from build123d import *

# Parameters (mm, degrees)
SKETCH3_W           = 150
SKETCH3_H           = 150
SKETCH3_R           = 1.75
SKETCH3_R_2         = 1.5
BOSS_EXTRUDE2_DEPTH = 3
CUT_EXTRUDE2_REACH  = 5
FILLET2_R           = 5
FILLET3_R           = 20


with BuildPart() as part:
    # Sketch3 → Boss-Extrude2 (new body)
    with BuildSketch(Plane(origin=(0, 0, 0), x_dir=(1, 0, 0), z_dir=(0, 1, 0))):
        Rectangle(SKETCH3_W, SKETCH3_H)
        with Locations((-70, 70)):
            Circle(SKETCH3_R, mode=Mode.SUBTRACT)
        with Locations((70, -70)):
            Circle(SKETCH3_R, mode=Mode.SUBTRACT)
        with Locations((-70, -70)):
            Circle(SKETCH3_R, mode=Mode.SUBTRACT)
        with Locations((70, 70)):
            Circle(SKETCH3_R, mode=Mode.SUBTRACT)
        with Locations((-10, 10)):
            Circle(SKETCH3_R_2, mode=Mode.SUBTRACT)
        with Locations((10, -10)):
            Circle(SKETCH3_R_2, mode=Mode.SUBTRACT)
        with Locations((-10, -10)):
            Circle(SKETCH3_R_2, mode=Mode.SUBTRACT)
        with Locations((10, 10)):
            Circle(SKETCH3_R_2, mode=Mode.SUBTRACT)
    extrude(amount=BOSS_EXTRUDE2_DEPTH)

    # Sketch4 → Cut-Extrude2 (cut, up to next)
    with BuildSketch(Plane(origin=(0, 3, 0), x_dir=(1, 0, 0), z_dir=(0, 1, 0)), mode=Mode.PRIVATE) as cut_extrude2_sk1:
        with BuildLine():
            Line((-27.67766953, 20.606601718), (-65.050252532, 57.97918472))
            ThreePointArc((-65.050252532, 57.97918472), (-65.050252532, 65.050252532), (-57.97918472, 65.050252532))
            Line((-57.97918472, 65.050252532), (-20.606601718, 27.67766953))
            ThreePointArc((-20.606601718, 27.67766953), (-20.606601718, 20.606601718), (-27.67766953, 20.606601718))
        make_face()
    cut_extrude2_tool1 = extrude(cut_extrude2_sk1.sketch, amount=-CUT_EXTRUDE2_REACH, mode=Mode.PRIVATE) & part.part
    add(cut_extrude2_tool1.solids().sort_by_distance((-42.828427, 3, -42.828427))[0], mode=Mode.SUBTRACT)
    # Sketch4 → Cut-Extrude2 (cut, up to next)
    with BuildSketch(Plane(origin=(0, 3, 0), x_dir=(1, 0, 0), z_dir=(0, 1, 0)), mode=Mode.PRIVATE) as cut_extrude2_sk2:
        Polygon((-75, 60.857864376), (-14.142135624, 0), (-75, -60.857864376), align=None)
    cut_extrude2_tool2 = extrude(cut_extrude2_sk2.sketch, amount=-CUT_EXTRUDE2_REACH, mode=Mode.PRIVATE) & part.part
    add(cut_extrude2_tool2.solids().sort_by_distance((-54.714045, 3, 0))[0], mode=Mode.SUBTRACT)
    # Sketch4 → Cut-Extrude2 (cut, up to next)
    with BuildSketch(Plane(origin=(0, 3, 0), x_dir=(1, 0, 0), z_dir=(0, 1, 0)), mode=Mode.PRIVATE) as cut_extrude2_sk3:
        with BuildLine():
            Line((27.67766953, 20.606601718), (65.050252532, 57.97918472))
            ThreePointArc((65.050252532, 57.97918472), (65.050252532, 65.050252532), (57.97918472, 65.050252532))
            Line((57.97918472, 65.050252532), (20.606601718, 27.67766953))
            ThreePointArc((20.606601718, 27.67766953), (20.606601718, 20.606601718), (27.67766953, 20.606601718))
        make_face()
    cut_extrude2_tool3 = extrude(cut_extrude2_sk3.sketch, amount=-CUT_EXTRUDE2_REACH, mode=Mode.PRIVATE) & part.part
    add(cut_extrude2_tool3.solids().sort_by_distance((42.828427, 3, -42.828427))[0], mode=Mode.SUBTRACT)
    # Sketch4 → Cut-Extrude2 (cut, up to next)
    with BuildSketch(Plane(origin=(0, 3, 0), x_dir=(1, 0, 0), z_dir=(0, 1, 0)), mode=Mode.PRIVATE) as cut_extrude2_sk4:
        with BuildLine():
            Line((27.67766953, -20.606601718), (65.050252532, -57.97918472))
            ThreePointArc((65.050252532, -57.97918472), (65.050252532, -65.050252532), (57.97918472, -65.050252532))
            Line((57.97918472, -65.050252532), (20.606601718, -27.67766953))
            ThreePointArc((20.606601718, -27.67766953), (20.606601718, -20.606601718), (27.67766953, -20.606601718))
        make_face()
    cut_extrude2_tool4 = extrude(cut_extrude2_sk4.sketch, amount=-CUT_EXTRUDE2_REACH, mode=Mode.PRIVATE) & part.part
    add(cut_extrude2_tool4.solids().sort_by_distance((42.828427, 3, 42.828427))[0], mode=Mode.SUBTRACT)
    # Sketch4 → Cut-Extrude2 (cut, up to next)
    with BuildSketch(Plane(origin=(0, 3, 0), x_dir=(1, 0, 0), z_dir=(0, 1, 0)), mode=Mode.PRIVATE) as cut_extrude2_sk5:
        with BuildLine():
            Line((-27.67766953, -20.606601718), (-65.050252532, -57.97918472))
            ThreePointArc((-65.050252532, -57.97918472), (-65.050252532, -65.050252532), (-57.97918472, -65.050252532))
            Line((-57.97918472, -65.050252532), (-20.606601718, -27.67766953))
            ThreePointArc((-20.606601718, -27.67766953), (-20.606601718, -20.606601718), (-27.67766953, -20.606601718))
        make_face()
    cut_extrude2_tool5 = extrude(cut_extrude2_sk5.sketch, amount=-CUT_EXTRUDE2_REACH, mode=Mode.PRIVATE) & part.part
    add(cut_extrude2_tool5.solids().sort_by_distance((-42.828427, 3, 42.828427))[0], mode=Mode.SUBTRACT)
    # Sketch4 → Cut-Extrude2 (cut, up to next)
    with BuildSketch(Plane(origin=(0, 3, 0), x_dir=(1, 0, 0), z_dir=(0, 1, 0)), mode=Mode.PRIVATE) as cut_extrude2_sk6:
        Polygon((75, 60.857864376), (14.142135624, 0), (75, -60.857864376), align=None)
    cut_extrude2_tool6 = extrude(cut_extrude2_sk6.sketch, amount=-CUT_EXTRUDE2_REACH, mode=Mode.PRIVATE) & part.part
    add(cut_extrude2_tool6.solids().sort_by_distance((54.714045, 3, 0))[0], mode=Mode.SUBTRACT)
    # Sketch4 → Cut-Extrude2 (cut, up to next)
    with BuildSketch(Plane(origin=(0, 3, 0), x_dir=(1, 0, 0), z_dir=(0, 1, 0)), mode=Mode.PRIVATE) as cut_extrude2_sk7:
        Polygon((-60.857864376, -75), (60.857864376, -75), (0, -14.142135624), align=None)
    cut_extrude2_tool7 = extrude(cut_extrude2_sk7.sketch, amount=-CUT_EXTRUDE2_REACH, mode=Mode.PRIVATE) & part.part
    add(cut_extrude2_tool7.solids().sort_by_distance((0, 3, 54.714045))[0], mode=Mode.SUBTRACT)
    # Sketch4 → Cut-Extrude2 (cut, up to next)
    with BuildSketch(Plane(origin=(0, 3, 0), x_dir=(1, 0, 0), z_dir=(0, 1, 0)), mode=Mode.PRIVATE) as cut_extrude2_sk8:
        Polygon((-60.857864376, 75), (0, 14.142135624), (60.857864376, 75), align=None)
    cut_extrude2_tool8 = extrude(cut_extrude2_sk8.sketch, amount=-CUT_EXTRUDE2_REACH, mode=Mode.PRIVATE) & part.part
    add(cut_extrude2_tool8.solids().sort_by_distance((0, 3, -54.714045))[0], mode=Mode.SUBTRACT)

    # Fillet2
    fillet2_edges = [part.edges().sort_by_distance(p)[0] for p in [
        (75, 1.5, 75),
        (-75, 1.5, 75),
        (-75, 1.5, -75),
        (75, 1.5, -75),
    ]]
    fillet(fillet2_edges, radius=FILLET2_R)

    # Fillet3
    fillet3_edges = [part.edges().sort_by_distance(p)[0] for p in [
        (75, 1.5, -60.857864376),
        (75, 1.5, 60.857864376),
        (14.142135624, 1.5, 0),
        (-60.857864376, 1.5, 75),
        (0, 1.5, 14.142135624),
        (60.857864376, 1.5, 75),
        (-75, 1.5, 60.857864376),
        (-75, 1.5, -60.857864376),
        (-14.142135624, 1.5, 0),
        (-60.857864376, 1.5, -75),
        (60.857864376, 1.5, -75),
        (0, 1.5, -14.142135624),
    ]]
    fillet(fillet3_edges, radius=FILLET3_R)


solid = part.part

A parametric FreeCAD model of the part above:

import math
import FreeCAD as App
import Part
import Sketcher
Q = App.Units.Quantity


def edges_at(feature, points):
    """Names of the edges that pass closest to the given points."""
    edges = feature.Shape.Edges
    near = lambda p: min(range(len(edges)), key=lambda i: edges[i].distToShape(Part.Vertex(*p))[0])
    return sorted({f"Edge{near(p) + 1}" for p in points})


def add_polygon(sketch, points):
    """Adds a closed chain of lines whose ends are joined by coincident constraints."""
    first, n = sketch.GeometryCount, len(points)
    for a, b in zip(points, points[1:] + points[:1]):
        sketch.addGeometry(Part.LineSegment(App.Vector(*a, 0), App.Vector(*b, 0)), False)
    for i in range(n):
        sketch.addConstraint(Sketcher.Constraint("Coincident", first + i, 2, first + (i + 1) % n, 1))

doc = App.newDocument("Part")
body = doc.addObject("PartDesign::Body", "Body")

sketch1 = body.newObject("Sketcher::SketchObject", "Sketch")
sketch1.AttachmentSupport = (doc.getObject("XZ_Plane"), [""])
sketch1.MapMode = "FlatFace"
add_polygon(sketch1, [(-75, -75), (-75, 75), (75, 75), (75, -75)])
sketch1.addGeometry(Part.Circle(App.Vector(-70, 70, 0), App.Vector(0, 0, 1), 1.75), False)
sketch1.addGeometry(Part.Circle(App.Vector(-10, 10, 0), App.Vector(0, 0, 1), 1.5), False)
sketch1.addGeometry(Part.Circle(App.Vector(70, 70, 0), App.Vector(0, 0, 1), 1.75), False)
sketch1.addGeometry(Part.Circle(App.Vector(10, 10, 0), App.Vector(0, 0, 1), 1.5), False)
sketch1.addGeometry(Part.Circle(App.Vector(-10, -10, 0), App.Vector(0, 0, 1), 1.5), False)
sketch1.addGeometry(Part.Circle(App.Vector(-70, -70, 0), App.Vector(0, 0, 1), 1.75), False)
sketch1.addGeometry(Part.Circle(App.Vector(10, -10, 0), App.Vector(0, 0, 1), 1.5), False)
sketch1.addGeometry(Part.Circle(App.Vector(70, -70, 0), App.Vector(0, 0, 1), 1.75), False)
sketch1.addConstraint([
    Sketcher.Constraint("Vertical", 0),
    Sketcher.Constraint("Horizontal", 1),
    Sketcher.Constraint("Vertical", 2),
    Sketcher.Constraint("Horizontal", 3),
    Sketcher.Constraint("Equal", 4, 6),
    Sketcher.Constraint("Equal", 5, 7),
    Sketcher.Constraint("Equal", 7, 8),
    Sketcher.Constraint("Equal", 6, 9),
    Sketcher.Constraint("Equal", 8, 10),
    Sketcher.Constraint("Equal", 9, 11),
    Sketcher.Constraint("Symmetric", 7, 3, 8, 3, -1, 1),
    Sketcher.Constraint("Symmetric", 6, 3, 9, 3, -1, 1),
    Sketcher.Constraint("Symmetric", 5, 3, 10, 3, -1, 1),
    Sketcher.Constraint("Symmetric", 4, 3, 11, 3, -1, 1),
    Sketcher.Constraint("Symmetric", 0, 2, 2, 2, -1, 1),
    Sketcher.Constraint("Symmetric", 4, 3, 6, 3, -2),
    Sketcher.Constraint("Symmetric", 5, 3, 7, 3, -2),
    Sketcher.Constraint("Equal", 3, 0),
    Sketcher.Constraint("Diameter", 5, 3.0),
    Sketcher.Constraint("Diameter", 4, 3.5),
    Sketcher.Constraint("DistanceX", 1, 1, 1, 2, 150.0),
    Sketcher.Constraint("DistanceX", 4, 3, -1, 1, 70.0),
    Sketcher.Constraint("DistanceY", -1, 1, 4, 3, 70.0),
    Sketcher.Constraint("DistanceX", 5, 3, -1, 1, 10.0),
    Sketcher.Constraint("DistanceY", -1, 1, 5, 3, 10.0),
])
pad1 = body.newObject("PartDesign::Pad", "Pad")
pad1.Profile = sketch1
pad1.Length = 3
pad1.Reversed = True

sketch2 = body.newObject("Sketcher::SketchObject", "Sketch001")
sketch2.AttachmentSupport = (doc.getObject("XZ_Plane"), [""])
sketch2.MapMode = "FlatFace"
sketch2.AttachmentOffset = App.Placement(App.Vector(0, 0, -3), App.Rotation())
sketch2.addGeometry([
    Part.LineSegment(App.Vector(-65.050253, -57.979185, 0), App.Vector(-27.67767, -20.606602, 0)),
    Part.ArcOfCircle(Part.Circle(App.Vector(-24.142136, -24.142136, 0), App.Vector(0, 0, 1), 5), math.radians(-45), math.radians(135)),
    Part.LineSegment(App.Vector(-20.606602, -27.67767, 0), App.Vector(-57.979185, -65.050253, 0)),
    Part.ArcOfCircle(Part.Circle(App.Vector(-61.514719, -61.514719, 0), App.Vector(0, 0, 1), 5), math.radians(135), math.radians(315)),
], False)
sketch2.addConstraint([
    Sketcher.Constraint("Tangent", 0, 2, 1, 2),
    Sketcher.Constraint("Tangent", 1, 1, 2, 1),
    Sketcher.Constraint("Tangent", 2, 2, 3, 2),
    Sketcher.Constraint("Tangent", 3, 1, 0, 1),
    Sketcher.Constraint("Equal", 1, 3),
    Sketcher.Constraint("Radius", 1, 5.0),
    Sketcher.Constraint("Angle", 0, Q("45 deg")),
    Sketcher.Constraint("DistanceY", 0, 2, -1, 1, 20.606602),
    Sketcher.Constraint("DistanceX", 1, 1, -1, 1, 20.606602),
    Sketcher.Constraint("DistanceX", 3, 3, -1, 1, 61.514719),
])
pocket1 = body.newObject("PartDesign::Pocket", "Pocket")
pocket1.Profile = sketch2
pocket1.Type = "UpToFirst"
pocket1.Reversed = True

sketch3 = body.newObject("Sketcher::SketchObject", "Sketch002")
sketch3.AttachmentSupport = (doc.getObject("XZ_Plane"), [""])
sketch3.MapMode = "FlatFace"
sketch3.AttachmentOffset = App.Placement(App.Vector(0, 0, -3), App.Rotation())
add_polygon(sketch3, [(-14.142136, 0), (-75, -60.857864), (-75, 60.857864)])
sketch3.addConstraint([
    Sketcher.Constraint("Vertical", 1),
    Sketcher.Constraint("PointOnObject", 2, 2, -1),
    Sketcher.Constraint("Perpendicular", 0, 2),
    Sketcher.Constraint("Equal", 0, 2),
    Sketcher.Constraint("DistanceX", 0, 2, -1, 1, 75.0),
    Sketcher.Constraint("DistanceY", 1, 1, 1, 2, 121.715729),
])
pocket2 = body.newObject("PartDesign::Pocket", "Pocket001")
pocket2.Profile = sketch3
pocket2.Type = "UpToFirst"
pocket2.Reversed = True

sketch4 = body.newObject("Sketcher::SketchObject", "Sketch003")
sketch4.AttachmentSupport = (doc.getObject("XZ_Plane"), [""])
sketch4.MapMode = "FlatFace"
sketch4.AttachmentOffset = App.Placement(App.Vector(0, 0, -3), App.Rotation())
sketch4.addGeometry([
    Part.LineSegment(App.Vector(27.67767, -20.606602, 0), App.Vector(65.050253, -57.979185, 0)),
    Part.ArcOfCircle(Part.Circle(App.Vector(61.514719, -61.514719, 0), App.Vector(0, 0, 1), 5), math.radians(-135), math.radians(45)),
    Part.LineSegment(App.Vector(57.979185, -65.050253, 0), App.Vector(20.606602, -27.67767, 0)),
    Part.ArcOfCircle(Part.Circle(App.Vector(24.142136, -24.142136, 0), App.Vector(0, 0, 1), 5), math.radians(45), math.radians(225)),
], False)
sketch4.addConstraint([
    Sketcher.Constraint("Tangent", 0, 2, 1, 2),
    Sketcher.Constraint("Tangent", 1, 1, 2, 1),
    Sketcher.Constraint("Tangent", 2, 2, 3, 2),
    Sketcher.Constraint("Tangent", 3, 1, 0, 1),
    Sketcher.Constraint("Equal", 1, 3),
    Sketcher.Constraint("Radius", 1, 5.0),
    Sketcher.Constraint("Angle", 0, Q("-45 deg")),
    Sketcher.Constraint("DistanceX", -1, 1, 2, 2, 20.606602),
    Sketcher.Constraint("DistanceY", 3, 1, -1, 1, 20.606602),
    Sketcher.Constraint("DistanceX", -1, 1, 1, 3, 61.514719),
])
pocket3 = body.newObject("PartDesign::Pocket", "Pocket002")
pocket3.Profile = sketch4
pocket3.Type = "UpToFirst"
pocket3.Reversed = True

sketch5 = body.newObject("Sketcher::SketchObject", "Sketch004")
sketch5.AttachmentSupport = (doc.getObject("XZ_Plane"), [""])
sketch5.MapMode = "FlatFace"
sketch5.AttachmentOffset = App.Placement(App.Vector(0, 0, -3), App.Rotation())
sketch5.addGeometry([
    Part.LineSegment(App.Vector(65.050253, 57.979185, 0), App.Vector(27.67767, 20.606602, 0)),
    Part.ArcOfCircle(Part.Circle(App.Vector(24.142136, 24.142136, 0), App.Vector(0, 0, 1), 5), math.radians(135), math.radians(315)),
    Part.LineSegment(App.Vector(20.606602, 27.67767, 0), App.Vector(57.979185, 65.050253, 0)),
    Part.ArcOfCircle(Part.Circle(App.Vector(61.514719, 61.514719, 0), App.Vector(0, 0, 1), 5), math.radians(-45), math.radians(135)),
], False)
sketch5.addConstraint([
    Sketcher.Constraint("Tangent", 0, 2, 1, 2),
    Sketcher.Constraint("Tangent", 1, 1, 2, 1),
    Sketcher.Constraint("Tangent", 2, 2, 3, 2),
    Sketcher.Constraint("Tangent", 3, 1, 0, 1),
    Sketcher.Constraint("Equal", 1, 3),
    Sketcher.Constraint("Radius", 1, 5.0),
    Sketcher.Constraint("Angle", 0, Q("-135 deg")),
    Sketcher.Constraint("DistanceY", -1, 1, 0, 2, 20.606602),
    Sketcher.Constraint("DistanceX", -1, 1, 1, 1, 20.606602),
    Sketcher.Constraint("DistanceX", -1, 1, 3, 3, 61.514719),
])
pocket4 = body.newObject("PartDesign::Pocket", "Pocket003")
pocket4.Profile = sketch5
pocket4.Type = "UpToFirst"
pocket4.Reversed = True

sketch6 = body.newObject("Sketcher::SketchObject", "Sketch005")
sketch6.AttachmentSupport = (doc.getObject("XZ_Plane"), [""])
sketch6.MapMode = "FlatFace"
sketch6.AttachmentOffset = App.Placement(App.Vector(0, 0, -3), App.Rotation())
sketch6.addGeometry([
    Part.LineSegment(App.Vector(-27.67767, 20.606602, 0), App.Vector(-65.050253, 57.979185, 0)),
    Part.ArcOfCircle(Part.Circle(App.Vector(-61.514719, 61.514719, 0), App.Vector(0, 0, 1), 5), math.radians(45), math.radians(225)),
    Part.LineSegment(App.Vector(-57.979185, 65.050253, 0), App.Vector(-20.606602, 27.67767, 0)),
    Part.ArcOfCircle(Part.Circle(App.Vector(-24.142136, 24.142136, 0), App.Vector(0, 0, 1), 5), math.radians(-135), math.radians(45)),
], False)
sketch6.addConstraint([
    Sketcher.Constraint("Tangent", 0, 2, 1, 2),
    Sketcher.Constraint("Tangent", 1, 1, 2, 1),
    Sketcher.Constraint("Tangent", 2, 2, 3, 2),
    Sketcher.Constraint("Tangent", 3, 1, 0, 1),
    Sketcher.Constraint("Equal", 1, 3),
    Sketcher.Constraint("Radius", 1, 5.0),
    Sketcher.Constraint("Angle", 0, Q("135 deg")),
    Sketcher.Constraint("DistanceX", 2, 2, -1, 1, 20.606602),
    Sketcher.Constraint("DistanceY", -1, 1, 3, 1, 20.606602),
    Sketcher.Constraint("DistanceX", 1, 3, -1, 1, 61.514719),
])
pocket5 = body.newObject("PartDesign::Pocket", "Pocket004")
pocket5.Profile = sketch6
pocket5.Type = "UpToFirst"
pocket5.Reversed = True

sketch7 = body.newObject("Sketcher::SketchObject", "Sketch006")
sketch7.AttachmentSupport = (doc.getObject("XZ_Plane"), [""])
sketch7.MapMode = "FlatFace"
sketch7.AttachmentOffset = App.Placement(App.Vector(0, 0, -3), App.Rotation())
add_polygon(sketch7, [(75, -60.857864), (14.142136, 0), (75, 60.857864)])
sketch7.addConstraint([
    Sketcher.Constraint("Vertical", 2),
    Sketcher.Constraint("PointOnObject", 0, 2, -1),
    Sketcher.Constraint("Perpendicular", 0, 1),
    Sketcher.Constraint("Equal", 0, 1),
    Sketcher.Constraint("DistanceX", -1, 1, 1, 2, 75.0),
    Sketcher.Constraint("DistanceY", 2, 2, 2, 1, 121.715729),
])
pocket6 = body.newObject("PartDesign::Pocket", "Pocket005")
pocket6.Profile = sketch7
pocket6.Type = "UpToFirst"
pocket6.Reversed = True

sketch8 = body.newObject("Sketcher::SketchObject", "Sketch007")
sketch8.AttachmentSupport = (doc.getObject("XZ_Plane"), [""])
sketch8.MapMode = "FlatFace"
sketch8.AttachmentOffset = App.Placement(App.Vector(0, 0, -3), App.Rotation())
add_polygon(sketch8, [(-60.857864, 75), (60.857864, 75), (0, 14.142136)])
sketch8.addConstraint([
    Sketcher.Constraint("Horizontal", 0),
    Sketcher.Constraint("PointOnObject", 1, 2, -2),
    Sketcher.Constraint("Perpendicular", 1, 2),
    Sketcher.Constraint("Equal", 1, 2),
    Sketcher.Constraint("DistanceY", -1, 1, 0, 2, 75.0),
    Sketcher.Constraint("DistanceX", 0, 1, 0, 2, 121.715729),
])
pocket7 = body.newObject("PartDesign::Pocket", "Pocket006")
pocket7.Profile = sketch8
pocket7.Type = "UpToFirst"
pocket7.Reversed = True

sketch9 = body.newObject("Sketcher::SketchObject", "Sketch008")
sketch9.AttachmentSupport = (doc.getObject("XZ_Plane"), [""])
sketch9.MapMode = "FlatFace"
sketch9.AttachmentOffset = App.Placement(App.Vector(0, 0, -3), App.Rotation())
add_polygon(sketch9, [(-60.857864, -75), (0, -14.142136), (60.857864, -75)])
sketch9.addConstraint([
    Sketcher.Constraint("Horizontal", 2),
    Sketcher.Constraint("PointOnObject", 0, 2, -2),
    Sketcher.Constraint("Perpendicular", 0, 1),
    Sketcher.Constraint("Equal", 0, 1),
    Sketcher.Constraint("DistanceY", 1, 2, -1, 1, 75.0),
    Sketcher.Constraint("DistanceX", 2, 2, 2, 1, 121.715729),
])
pocket8 = body.newObject("PartDesign::Pocket", "Pocket007")
pocket8.Profile = sketch9
pocket8.Type = "UpToFirst"
pocket8.Reversed = True
doc.recompute()

fillet = body.newObject("PartDesign::Fillet", "Fillet")
fillet.Base = (pocket8, edges_at(pocket8, [
    (75, 1.5, 75),
    (-75, 1.5, 75),
    (-75, 1.5, -75),
    (75, 1.5, -75),
]))
fillet.Radius = 5
doc.recompute()

fillet2 = body.newObject("PartDesign::Fillet", "Fillet001")
fillet2.Base = (fillet, edges_at(fillet, [
    (75, 1.5, -60.858),
    (75, 1.5, 60.858),
    (14.142, 1.5, 0),
    (-60.858, 1.5, 75),
    (0, 1.5, 14.142),
    (60.858, 1.5, 75),
    (-75, 1.5, 60.858),
    (-75, 1.5, -60.858),
    (-14.142, 1.5, 0),
    (-60.858, 1.5, -75),
    (60.858, 1.5, -75),
    (0, 1.5, -14.142),
]))
fillet2.Radius = 20

doc.recompute()
